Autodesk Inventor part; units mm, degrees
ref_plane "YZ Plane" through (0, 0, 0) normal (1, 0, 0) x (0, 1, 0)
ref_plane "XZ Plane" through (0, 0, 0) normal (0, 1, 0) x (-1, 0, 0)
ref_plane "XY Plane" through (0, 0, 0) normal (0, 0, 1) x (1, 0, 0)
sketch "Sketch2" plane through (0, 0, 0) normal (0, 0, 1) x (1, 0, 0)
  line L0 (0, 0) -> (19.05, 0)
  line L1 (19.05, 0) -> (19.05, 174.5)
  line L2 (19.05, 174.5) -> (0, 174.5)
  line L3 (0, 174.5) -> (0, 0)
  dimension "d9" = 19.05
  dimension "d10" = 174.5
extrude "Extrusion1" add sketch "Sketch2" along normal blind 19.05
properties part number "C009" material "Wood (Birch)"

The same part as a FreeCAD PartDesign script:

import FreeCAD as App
import Part
import Sketcher

V = App.Vector

doc = App.newDocument("Part")
body = doc.addObject("PartDesign::Body", "Body")

# Sketch on XY plane
sketch1 = body.newObject("Sketcher::SketchObject", "Sketch")
sketch1.AttachmentSupport = (doc.getObject("XY_Plane"), [""])
sketch1.MapMode = "FlatFace"
sketch1.addGeometry([
    Part.LineSegment(V(0, 174.5, 0), V(0, 0, 0)),
    Part.LineSegment(V(0, 0, 0), V(19.05, 0, 0)),
    Part.LineSegment(V(19.05, 0, 0), V(19.05, 174.5, 0)),
    Part.LineSegment(V(19.05, 174.5, 0), V(0, 174.5, 0)),
], False)
sketch1.addConstraint([
    Sketcher.Constraint("Coincident", 0, 2, 1, 1),
    Sketcher.Constraint("Coincident", 1, 2, 2, 1),
    Sketcher.Constraint("Coincident", 2, 2, 3, 1),
    Sketcher.Constraint("Coincident", 3, 2, 0, 1),
    Sketcher.Constraint("Vertical", 0),
    Sketcher.Constraint("Horizontal", 1),
    Sketcher.Constraint("Vertical", 2),
    Sketcher.Constraint("Horizontal", 3),
    Sketcher.Constraint("Coincident", 0, 2, -1, 1),
    Sketcher.Constraint("DistanceY", 0, 2, 0, 1, 174.5),
    Sketcher.Constraint("DistanceX", 1, 1, 1, 2, 19.05),
])
pad1 = body.newObject("PartDesign::Pad", "Pad")
pad1.Profile = sketch1
pad1.Length = 19.05

doc.recompute()
